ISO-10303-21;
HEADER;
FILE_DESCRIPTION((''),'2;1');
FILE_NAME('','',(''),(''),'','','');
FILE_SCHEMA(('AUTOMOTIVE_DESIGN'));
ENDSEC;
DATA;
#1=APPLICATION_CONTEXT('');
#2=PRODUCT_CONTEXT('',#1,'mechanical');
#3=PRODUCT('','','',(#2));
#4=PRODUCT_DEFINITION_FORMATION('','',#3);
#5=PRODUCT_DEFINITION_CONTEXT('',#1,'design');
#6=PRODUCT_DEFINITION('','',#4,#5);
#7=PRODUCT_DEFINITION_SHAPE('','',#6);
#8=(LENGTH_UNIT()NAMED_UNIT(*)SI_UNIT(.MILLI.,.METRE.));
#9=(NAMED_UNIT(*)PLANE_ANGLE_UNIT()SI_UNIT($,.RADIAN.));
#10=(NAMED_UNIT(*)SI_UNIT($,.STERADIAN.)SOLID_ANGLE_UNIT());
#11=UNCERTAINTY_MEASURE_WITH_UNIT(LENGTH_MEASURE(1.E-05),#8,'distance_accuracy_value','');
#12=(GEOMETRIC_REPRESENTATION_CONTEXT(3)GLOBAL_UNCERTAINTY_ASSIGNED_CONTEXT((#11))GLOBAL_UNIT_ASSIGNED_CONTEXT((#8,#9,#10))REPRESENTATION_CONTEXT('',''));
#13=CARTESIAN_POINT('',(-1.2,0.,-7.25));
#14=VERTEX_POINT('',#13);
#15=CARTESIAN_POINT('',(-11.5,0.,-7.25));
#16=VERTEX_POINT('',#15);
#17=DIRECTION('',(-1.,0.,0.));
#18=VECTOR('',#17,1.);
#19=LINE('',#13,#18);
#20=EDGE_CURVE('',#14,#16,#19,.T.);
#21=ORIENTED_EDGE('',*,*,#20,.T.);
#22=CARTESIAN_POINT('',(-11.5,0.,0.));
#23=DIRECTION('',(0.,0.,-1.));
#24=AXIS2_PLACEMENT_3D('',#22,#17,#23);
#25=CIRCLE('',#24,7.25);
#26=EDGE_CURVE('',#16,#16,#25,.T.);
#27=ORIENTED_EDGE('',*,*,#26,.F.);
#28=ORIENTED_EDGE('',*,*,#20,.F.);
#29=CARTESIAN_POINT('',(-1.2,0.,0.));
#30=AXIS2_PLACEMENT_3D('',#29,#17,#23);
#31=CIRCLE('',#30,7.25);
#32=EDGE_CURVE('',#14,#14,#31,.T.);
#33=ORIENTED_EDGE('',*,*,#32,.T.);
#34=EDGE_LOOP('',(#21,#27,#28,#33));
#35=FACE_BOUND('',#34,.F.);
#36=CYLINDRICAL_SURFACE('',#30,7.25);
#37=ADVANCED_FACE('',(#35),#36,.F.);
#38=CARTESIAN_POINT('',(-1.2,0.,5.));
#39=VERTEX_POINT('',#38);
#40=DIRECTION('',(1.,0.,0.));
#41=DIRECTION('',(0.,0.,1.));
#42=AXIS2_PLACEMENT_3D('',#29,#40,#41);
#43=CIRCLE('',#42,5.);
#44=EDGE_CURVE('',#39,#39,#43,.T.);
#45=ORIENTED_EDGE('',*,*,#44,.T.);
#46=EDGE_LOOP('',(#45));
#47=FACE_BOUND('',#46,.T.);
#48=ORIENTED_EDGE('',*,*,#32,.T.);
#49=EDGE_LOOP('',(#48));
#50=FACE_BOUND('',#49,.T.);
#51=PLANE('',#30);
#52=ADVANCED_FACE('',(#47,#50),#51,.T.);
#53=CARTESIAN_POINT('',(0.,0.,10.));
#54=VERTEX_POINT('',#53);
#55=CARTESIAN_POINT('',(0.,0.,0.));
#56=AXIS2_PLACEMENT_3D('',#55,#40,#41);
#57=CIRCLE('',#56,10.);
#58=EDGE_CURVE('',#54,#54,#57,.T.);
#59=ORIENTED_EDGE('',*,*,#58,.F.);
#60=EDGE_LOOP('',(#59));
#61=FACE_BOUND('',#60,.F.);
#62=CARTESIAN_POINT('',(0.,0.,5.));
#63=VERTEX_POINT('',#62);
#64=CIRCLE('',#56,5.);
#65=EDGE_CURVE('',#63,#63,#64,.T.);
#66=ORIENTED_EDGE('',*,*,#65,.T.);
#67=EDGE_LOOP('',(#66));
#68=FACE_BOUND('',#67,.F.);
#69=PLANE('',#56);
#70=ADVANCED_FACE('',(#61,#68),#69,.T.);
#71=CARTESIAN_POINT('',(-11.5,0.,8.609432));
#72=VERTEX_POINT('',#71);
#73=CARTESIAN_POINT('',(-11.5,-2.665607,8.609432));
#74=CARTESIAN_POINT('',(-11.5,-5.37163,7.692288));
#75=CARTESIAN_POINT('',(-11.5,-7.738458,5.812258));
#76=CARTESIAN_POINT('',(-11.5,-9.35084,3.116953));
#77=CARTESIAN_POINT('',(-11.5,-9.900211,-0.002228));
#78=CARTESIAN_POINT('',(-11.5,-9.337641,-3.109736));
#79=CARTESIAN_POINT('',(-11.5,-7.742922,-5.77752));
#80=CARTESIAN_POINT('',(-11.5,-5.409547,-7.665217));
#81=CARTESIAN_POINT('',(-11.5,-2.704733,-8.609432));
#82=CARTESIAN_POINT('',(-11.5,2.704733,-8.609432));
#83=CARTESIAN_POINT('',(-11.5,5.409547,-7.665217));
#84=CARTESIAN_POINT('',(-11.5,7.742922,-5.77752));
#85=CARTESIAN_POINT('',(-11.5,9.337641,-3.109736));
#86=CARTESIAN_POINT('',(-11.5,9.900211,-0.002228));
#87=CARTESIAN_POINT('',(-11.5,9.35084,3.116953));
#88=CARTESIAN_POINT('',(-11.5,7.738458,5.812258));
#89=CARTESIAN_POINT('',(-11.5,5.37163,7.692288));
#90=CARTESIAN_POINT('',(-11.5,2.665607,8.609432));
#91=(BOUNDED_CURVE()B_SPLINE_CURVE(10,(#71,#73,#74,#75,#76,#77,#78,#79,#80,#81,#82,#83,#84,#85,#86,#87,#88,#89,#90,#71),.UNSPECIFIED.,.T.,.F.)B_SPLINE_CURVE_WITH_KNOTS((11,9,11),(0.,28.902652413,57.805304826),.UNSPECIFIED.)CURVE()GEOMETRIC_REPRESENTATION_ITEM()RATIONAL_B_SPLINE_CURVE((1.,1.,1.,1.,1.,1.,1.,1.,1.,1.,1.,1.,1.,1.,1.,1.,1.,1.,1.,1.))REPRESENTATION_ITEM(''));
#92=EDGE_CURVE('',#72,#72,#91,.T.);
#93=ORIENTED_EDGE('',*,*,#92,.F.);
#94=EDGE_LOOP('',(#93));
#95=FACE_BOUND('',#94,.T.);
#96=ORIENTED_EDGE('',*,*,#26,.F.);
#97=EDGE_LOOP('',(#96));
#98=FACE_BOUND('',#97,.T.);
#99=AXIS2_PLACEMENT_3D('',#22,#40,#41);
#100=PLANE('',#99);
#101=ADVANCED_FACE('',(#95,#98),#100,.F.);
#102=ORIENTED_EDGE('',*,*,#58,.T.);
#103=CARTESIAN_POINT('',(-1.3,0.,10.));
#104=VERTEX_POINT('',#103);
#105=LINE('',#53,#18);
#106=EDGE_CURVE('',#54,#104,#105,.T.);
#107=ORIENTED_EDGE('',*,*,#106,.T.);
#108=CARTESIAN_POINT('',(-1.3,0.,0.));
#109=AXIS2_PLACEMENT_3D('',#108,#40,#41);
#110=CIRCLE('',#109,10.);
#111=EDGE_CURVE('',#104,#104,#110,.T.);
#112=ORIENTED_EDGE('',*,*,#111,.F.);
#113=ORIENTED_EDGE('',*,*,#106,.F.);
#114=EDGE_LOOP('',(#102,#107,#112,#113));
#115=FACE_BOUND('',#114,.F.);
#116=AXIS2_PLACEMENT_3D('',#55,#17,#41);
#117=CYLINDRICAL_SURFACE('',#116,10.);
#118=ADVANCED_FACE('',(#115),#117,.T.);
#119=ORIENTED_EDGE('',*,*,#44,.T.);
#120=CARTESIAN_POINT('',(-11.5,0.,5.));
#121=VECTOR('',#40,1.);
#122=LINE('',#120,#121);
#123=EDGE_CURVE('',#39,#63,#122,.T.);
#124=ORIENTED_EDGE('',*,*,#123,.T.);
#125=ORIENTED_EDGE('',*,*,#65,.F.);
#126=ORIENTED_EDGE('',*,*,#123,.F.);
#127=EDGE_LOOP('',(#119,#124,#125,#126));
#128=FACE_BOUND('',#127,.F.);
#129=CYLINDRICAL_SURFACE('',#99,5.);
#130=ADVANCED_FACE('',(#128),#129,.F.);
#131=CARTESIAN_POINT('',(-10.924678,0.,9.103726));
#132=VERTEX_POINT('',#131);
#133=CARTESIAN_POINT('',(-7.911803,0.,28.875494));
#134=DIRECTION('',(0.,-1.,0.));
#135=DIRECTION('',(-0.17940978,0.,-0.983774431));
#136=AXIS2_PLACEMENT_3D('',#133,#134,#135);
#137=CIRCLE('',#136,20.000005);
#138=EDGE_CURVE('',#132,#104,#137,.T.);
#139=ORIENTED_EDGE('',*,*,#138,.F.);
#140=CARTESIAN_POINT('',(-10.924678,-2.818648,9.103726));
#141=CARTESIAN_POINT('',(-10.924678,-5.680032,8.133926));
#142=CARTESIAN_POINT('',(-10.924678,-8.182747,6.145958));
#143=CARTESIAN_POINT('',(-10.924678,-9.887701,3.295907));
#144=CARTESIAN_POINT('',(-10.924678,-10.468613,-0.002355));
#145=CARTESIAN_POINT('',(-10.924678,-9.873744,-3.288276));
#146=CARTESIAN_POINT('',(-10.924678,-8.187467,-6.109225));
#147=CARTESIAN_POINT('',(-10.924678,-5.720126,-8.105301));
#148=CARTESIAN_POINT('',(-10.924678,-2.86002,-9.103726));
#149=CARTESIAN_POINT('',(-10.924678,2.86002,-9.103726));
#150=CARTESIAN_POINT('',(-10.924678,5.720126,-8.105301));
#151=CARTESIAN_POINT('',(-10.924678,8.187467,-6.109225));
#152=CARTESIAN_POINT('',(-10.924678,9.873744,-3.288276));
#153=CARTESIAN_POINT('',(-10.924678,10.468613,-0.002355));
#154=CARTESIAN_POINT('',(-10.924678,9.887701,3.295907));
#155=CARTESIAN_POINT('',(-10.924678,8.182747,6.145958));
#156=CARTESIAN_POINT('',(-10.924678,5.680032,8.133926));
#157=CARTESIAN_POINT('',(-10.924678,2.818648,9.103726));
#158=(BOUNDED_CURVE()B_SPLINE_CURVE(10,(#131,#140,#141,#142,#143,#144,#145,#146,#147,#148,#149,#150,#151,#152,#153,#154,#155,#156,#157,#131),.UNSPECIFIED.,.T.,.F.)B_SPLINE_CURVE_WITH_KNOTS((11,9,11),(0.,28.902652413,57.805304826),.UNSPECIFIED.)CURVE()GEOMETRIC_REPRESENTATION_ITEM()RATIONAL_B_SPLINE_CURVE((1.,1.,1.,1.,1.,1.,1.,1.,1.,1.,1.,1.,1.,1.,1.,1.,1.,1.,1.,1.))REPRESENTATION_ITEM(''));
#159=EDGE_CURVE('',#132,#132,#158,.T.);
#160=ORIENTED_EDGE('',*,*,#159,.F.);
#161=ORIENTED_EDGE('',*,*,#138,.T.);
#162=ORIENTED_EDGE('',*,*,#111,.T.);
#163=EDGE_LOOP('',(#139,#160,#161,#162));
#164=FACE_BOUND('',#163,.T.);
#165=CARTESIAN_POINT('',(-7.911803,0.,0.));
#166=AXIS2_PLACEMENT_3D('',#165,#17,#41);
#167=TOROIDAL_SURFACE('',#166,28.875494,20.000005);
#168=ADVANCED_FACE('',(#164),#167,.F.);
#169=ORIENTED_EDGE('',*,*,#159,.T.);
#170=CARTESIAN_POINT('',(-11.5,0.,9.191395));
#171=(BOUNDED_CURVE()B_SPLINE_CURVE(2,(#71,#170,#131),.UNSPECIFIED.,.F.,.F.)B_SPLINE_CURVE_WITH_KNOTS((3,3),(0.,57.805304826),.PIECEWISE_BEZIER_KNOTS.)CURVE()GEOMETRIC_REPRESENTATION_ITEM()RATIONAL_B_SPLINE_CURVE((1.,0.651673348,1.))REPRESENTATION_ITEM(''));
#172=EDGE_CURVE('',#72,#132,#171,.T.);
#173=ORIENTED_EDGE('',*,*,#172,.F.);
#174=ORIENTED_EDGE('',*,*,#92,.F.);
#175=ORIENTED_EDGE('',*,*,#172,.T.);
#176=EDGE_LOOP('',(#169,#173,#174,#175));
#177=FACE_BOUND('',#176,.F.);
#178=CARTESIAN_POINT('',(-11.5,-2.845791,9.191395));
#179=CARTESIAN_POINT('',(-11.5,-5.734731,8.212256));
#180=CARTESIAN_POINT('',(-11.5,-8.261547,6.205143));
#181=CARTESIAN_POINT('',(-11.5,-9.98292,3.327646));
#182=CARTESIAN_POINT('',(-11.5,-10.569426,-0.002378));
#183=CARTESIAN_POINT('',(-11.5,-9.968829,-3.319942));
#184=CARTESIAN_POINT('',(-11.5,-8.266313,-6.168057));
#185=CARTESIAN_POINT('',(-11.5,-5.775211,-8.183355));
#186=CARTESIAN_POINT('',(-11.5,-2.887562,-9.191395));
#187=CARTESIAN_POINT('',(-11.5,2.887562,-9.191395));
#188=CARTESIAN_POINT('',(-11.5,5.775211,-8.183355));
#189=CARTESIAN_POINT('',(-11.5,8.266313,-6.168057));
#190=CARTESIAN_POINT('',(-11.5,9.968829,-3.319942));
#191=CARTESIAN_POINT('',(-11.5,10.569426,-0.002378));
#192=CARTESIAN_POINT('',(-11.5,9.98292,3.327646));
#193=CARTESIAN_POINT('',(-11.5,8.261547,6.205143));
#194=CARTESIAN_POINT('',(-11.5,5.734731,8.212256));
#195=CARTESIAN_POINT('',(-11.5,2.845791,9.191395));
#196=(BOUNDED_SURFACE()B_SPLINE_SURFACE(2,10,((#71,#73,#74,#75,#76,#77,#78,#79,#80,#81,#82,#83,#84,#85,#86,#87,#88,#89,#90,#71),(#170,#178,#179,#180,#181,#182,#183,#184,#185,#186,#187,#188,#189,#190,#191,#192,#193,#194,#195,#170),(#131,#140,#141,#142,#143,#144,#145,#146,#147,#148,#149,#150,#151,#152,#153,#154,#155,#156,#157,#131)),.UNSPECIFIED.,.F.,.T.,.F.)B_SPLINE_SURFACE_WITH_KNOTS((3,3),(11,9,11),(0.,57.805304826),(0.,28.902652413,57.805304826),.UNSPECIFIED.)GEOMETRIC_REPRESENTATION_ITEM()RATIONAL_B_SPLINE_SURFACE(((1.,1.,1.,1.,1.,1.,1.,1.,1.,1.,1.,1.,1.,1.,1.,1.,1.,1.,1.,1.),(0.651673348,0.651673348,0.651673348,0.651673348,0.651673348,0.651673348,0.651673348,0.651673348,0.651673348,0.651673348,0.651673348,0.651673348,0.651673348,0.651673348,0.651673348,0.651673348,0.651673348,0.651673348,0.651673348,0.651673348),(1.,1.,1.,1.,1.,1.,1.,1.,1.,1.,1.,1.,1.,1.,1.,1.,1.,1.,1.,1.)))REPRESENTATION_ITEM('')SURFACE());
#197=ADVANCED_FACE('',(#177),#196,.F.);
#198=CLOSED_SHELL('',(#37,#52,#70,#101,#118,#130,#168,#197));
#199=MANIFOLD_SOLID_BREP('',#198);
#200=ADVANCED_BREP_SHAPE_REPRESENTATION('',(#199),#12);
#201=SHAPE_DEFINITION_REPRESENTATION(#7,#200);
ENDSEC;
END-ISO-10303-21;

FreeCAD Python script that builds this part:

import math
import FreeCAD as App
import Part
import Sketcher
from FreeCAD import Vector
Q = App.Units.Quantity


def edges_at(feature, points):
    """Names of the edges that pass closest to the given points."""
    edges = feature.Shape.Edges
    near = lambda p: min(range(len(edges)), key=lambda i: edges[i].distToShape(Part.Vertex(*p))[0])
    return sorted({f"Edge{near(p) + 1}" for p in points})

doc = App.newDocument("Part")
body = doc.addObject("PartDesign::Body", "Body")

# Sketch on XZ plane
sketch1 = doc.addObject("Sketcher::SketchObject", "Sketch")
body.addObject(sketch1)
sketch1.AttachmentSupport = (doc.XZ_Plane, [""])
sketch1.MapMode = "FlatFace"
sketch1.addGeometry(Part.LineSegment(Vector(-11.5, 0, 0), Vector(0, 0, 0)), False)
sketch1.addGeometry(Part.LineSegment(Vector(0, 0, 0), Vector(0, 10, 0)), False)
sketch1.addGeometry(Part.LineSegment(Vector(0, 10, 0), Vector(-1.3, 10, 0)), False)
sketch1.addGeometry(Part.ArcOfCircle(Part.Circle(Vector(-7.911803, 28.875494, 0), Vector(0, 0, 1), 20.000005), math.radians(-100.335383), math.radians(-70.695405)), False)
sketch1.addGeometry(Part.LineSegment(Vector(-11.5, 9.2, 0), Vector(-11.5, 0, 0)), False)
sketch1.addConstraint(Sketcher.Constraint("Coincident", 0, 2, 1, 1))
sketch1.addConstraint(Sketcher.Constraint("Coincident", 1, 2, 2, 1))
sketch1.addConstraint(Sketcher.Constraint("Coincident", 2, 2, 3, 2))
sketch1.addConstraint(Sketcher.Constraint("Coincident", 3, 1, 4, 1))
sketch1.addConstraint(Sketcher.Constraint("Coincident", 4, 2, 0, 1))
sketch1.addConstraint(Sketcher.Constraint("Horizontal", 0))
sketch1.addConstraint(Sketcher.Constraint("Vertical", 1))
sketch1.addConstraint(Sketcher.Constraint("Horizontal", 2))
sketch1.addConstraint(Sketcher.Constraint("Vertical", 4))
sketch1.addConstraint(Sketcher.Constraint("Coincident", 0, 2, -1, 1))
sketch1.addConstraint(Sketcher.Constraint("DistanceY", 1, 1, 1, 2, Q("10 mm")))
sketch1.addConstraint(Sketcher.Constraint("DistanceX", 0, 1, 0, 2, Q("11.5 mm")))
sketch1.addConstraint(Sketcher.Constraint("DistanceX", 2, 2, 2, 1, Q("1.3 mm")))
sketch1.addConstraint(Sketcher.Constraint("DistanceY", 4, 2, 4, 1, Q("9.2 mm")))
sketch1.addConstraint(Sketcher.Constraint("Radius", 3, Q("20.000005 mm")))
revolution = doc.addObject("PartDesign::Revolution", "Revolution")
body.addObject(revolution)
revolution.Profile = sketch1
revolution.ReferenceAxis = (sketch1, ["H_Axis"])
revolution.Angle = 360

# Sketch on YZ plane
sketch2 = doc.addObject("Sketcher::SketchObject", "Sketch001")
body.addObject(sketch2)
sketch2.AttachmentSupport = (doc.YZ_Plane, [""])
sketch2.MapMode = "FlatFace"
sketch2.AttachmentOffset = App.Placement(Vector(0, 0, -11.5), App.Rotation())
sketch2.addGeometry(Part.Circle(Vector(0, 0, 0), Vector(0, 0, 1), 5), False)
sketch2.addConstraint(Sketcher.Constraint("Coincident", 0, 3, -1, 1))
sketch2.addConstraint(Sketcher.Constraint("Diameter", 0, Q("10 mm")))
doc.recompute()
hole = doc.addObject("PartDesign::Hole", "Hole")
body.addObject(hole)
hole.Profile = sketch2
hole.ThreadType = "None"
hole.Diameter = 10
hole.DepthType = "ThroughAll"
hole.HoleCutType = "Counterbore"
hole.HoleCutDiameter = 14.5
hole.HoleCutDepth = 10.3
hole.Reversed = True
doc.recompute()

fillet = doc.addObject("PartDesign::Fillet", "Fillet")
body.addObject(fillet)
fillet.Base = (hole, edges_at(hole, [(-11.5, 0, -9.2)]))
fillet.Radius = 0.5

doc.recompute()
